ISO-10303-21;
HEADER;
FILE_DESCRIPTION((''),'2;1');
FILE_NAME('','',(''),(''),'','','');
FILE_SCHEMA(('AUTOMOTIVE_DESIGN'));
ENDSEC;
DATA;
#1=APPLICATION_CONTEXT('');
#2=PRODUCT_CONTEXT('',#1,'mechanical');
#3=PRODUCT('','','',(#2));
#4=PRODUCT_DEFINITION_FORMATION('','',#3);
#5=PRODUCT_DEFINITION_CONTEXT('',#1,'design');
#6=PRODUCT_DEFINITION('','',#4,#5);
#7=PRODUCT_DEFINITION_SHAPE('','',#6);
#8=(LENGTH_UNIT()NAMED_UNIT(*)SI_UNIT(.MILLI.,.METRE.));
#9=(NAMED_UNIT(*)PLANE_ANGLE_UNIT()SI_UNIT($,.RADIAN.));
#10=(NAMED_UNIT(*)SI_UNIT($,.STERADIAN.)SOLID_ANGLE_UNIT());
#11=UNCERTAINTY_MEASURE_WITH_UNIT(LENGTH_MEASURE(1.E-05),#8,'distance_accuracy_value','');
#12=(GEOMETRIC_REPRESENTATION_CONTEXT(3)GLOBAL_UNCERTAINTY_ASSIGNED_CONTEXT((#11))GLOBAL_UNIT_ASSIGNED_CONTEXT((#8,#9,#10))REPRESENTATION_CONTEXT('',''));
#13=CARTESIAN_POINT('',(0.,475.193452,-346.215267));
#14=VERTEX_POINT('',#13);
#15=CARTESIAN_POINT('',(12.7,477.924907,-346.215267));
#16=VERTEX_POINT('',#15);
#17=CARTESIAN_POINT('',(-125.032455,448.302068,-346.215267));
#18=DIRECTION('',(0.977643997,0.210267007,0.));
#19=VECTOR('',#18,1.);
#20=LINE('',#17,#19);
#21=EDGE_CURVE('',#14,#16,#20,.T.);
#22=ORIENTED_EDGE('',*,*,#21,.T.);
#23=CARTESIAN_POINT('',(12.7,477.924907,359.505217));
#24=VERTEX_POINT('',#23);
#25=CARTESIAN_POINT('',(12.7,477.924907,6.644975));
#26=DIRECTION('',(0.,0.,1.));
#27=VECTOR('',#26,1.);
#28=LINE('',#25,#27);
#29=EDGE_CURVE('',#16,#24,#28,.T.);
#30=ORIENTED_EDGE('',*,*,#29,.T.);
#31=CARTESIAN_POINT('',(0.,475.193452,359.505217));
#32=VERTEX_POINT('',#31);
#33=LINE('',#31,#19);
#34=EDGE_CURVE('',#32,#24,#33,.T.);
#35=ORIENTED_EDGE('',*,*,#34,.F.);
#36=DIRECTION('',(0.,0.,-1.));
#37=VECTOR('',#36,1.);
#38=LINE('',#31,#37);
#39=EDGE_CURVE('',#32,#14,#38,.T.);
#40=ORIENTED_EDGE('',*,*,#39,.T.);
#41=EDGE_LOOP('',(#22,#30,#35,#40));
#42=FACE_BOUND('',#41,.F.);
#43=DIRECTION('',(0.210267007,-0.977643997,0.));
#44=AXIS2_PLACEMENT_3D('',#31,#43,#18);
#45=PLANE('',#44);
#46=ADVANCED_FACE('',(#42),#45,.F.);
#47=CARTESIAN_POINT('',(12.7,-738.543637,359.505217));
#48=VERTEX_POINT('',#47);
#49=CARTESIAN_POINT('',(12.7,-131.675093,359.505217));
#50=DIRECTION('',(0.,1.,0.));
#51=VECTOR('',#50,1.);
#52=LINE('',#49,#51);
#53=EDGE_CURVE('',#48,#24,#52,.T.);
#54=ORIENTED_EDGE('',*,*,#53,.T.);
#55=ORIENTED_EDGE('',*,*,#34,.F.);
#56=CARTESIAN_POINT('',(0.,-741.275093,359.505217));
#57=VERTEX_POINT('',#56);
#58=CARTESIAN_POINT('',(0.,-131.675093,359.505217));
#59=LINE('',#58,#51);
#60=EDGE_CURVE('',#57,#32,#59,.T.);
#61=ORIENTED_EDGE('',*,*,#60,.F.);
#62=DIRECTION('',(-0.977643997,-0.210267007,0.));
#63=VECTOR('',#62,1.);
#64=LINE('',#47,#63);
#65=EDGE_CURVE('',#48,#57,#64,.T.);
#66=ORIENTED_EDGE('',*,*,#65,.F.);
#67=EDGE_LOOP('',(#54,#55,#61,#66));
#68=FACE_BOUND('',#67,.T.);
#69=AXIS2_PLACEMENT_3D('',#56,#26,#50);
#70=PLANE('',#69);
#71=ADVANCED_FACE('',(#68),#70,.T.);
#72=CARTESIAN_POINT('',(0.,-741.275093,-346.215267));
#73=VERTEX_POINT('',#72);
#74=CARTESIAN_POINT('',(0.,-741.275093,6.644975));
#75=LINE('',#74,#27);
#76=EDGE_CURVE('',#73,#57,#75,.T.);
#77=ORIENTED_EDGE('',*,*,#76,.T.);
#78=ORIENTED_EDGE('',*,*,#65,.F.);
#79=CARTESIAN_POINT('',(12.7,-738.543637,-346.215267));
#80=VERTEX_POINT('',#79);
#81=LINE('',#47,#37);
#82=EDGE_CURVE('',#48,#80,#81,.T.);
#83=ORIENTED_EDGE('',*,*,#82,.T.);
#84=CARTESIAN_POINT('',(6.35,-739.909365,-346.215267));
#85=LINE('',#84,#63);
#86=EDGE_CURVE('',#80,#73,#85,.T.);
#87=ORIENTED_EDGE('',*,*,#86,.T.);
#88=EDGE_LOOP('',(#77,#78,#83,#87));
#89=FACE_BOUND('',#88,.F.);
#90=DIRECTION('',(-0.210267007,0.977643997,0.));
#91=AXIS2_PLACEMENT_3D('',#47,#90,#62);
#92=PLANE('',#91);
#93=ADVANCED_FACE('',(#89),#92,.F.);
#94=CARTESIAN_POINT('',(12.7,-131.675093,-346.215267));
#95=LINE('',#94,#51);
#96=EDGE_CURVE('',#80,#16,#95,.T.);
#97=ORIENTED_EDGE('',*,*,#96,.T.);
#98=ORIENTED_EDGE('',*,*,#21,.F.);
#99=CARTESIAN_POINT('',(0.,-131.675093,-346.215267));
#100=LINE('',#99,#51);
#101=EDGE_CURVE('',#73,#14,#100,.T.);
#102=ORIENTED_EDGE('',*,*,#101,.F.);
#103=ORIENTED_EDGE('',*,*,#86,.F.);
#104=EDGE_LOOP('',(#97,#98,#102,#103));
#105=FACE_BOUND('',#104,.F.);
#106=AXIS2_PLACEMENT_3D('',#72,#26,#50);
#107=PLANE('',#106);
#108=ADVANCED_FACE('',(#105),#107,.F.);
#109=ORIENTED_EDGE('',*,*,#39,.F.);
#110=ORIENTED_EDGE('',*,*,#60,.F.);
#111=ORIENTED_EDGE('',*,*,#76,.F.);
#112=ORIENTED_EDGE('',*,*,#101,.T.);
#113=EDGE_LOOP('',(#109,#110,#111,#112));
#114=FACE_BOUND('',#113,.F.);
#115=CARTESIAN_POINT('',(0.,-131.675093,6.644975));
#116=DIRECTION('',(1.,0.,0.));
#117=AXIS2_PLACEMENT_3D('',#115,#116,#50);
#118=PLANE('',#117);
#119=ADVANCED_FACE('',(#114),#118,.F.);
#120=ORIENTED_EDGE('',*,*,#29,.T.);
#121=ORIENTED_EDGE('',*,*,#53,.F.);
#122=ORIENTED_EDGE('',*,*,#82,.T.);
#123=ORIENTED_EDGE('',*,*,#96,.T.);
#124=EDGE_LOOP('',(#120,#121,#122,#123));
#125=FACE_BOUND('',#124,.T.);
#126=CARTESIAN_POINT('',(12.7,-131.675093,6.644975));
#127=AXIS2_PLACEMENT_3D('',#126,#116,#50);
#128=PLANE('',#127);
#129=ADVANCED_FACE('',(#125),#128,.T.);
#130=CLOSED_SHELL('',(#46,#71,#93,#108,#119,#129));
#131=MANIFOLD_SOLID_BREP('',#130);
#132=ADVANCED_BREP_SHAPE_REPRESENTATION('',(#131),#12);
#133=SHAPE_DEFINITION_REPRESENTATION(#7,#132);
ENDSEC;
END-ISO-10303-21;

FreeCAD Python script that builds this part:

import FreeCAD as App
import Part
import Sketcher
from FreeCAD import Vector
Q = App.Units.Quantity


def add_polygon(sketch, points):
    """Adds a closed chain of lines whose ends are joined by coincident constraints."""
    first, n = sketch.GeometryCount, len(points)
    for a, b in zip(points, points[1:] + points[:1]):
        sketch.addGeometry(Part.LineSegment(App.Vector(*a, 0), App.Vector(*b, 0)), False)
    for i in range(n):
        sketch.addConstraint(Sketcher.Constraint("Coincident", first + i, 2, first + (i + 1) % n, 1))

doc = App.newDocument("Part")
body = doc.addObject("PartDesign::Body", "Body")

sketch1 = doc.addObject("Sketcher::SketchObject", "Sketch")
body.addObject(sketch1)
sketch1.AttachmentSupport = (doc.YZ_Plane, [""])
sketch1.MapMode = "FlatFace"
add_polygon(sketch1, [(-741, 360), (-741, -346), (478, -346), (478, 360)])
sketch1.addConstraint([
    Sketcher.Constraint("Vertical", 0),
    Sketcher.Constraint("Horizontal", 1),
    Sketcher.Constraint("Vertical", 2),
    Sketcher.Constraint("Horizontal", 3),
    Sketcher.Constraint("DistanceX", 1, 1, 1, 2, Q("48 in")),
    Sketcher.Constraint("DistanceY", 0, 2, 0, 1, Q("705.720483 mm")),
    Sketcher.Constraint("DistanceX", 0, 2, -1, 1, Q("741.275093 mm")),
    Sketcher.Constraint("DistanceY", 0, 2, -1, 1, Q("346.215267 mm")),
])
pad1 = doc.addObject("PartDesign::Pad", "Pad")
body.addObject(pad1)
pad1.Profile = sketch1
pad1.Length = Q("0.5 in")

sketch2 = doc.addObject("Sketcher::SketchObject", "Sketch001")
body.addObject(sketch2)
sketch2.AttachmentSupport = (doc.XY_Plane, [""])
sketch2.MapMode = "FlatFace"
sketch2.AttachmentOffset = App.Placement(Vector(0, 0, 359.505217), App.Rotation())
add_polygon(sketch2, [(12.7, -738.5), (0, -741.3), (12.7, -741.3)])
add_polygon(sketch2, [(-24, 470), (0, 475.2), (12.7, 477.9), (-24, 477.9)])
sketch2.addConstraint([
    Sketcher.Constraint("Horizontal", 1),
    Sketcher.Constraint("Vertical", 2),
    Sketcher.Constraint("Horizontal", 5),
    Sketcher.Constraint("Vertical", 6),
    Sketcher.Constraint("PointOnObject", 0, 2, -2),
    Sketcher.Constraint("PointOnObject", 3, 2, -2),
    Sketcher.Constraint("Parallel", 0, 3),
    Sketcher.Constraint("Parallel", 3, 4),
    Sketcher.Constraint("Vertical", 2, 2, 4, 2),
    Sketcher.Constraint("DistanceX", 1, 1, 1, 2, Q("0.5 in")),
    Sketcher.Constraint("DistanceY", 1, 2, 4, 2, Q("48 in")),
    Sketcher.Constraint("DistanceY", 6, 2, 6, 1, Q("7.895139 mm")),
    Sketcher.Constraint("DistanceX", 5, 2, 5, 1, Q("36.708733 mm")),
    Sketcher.Constraint("DistanceY", -1, 1, 3, 2, Q("475.193452 mm")),
])
pocket1 = doc.addObject("PartDesign::Pocket", "Pocket")
body.addObject(pocket1)
pocket1.Profile = sketch2
pocket1.Type = "ThroughAll"

doc.recompute()
